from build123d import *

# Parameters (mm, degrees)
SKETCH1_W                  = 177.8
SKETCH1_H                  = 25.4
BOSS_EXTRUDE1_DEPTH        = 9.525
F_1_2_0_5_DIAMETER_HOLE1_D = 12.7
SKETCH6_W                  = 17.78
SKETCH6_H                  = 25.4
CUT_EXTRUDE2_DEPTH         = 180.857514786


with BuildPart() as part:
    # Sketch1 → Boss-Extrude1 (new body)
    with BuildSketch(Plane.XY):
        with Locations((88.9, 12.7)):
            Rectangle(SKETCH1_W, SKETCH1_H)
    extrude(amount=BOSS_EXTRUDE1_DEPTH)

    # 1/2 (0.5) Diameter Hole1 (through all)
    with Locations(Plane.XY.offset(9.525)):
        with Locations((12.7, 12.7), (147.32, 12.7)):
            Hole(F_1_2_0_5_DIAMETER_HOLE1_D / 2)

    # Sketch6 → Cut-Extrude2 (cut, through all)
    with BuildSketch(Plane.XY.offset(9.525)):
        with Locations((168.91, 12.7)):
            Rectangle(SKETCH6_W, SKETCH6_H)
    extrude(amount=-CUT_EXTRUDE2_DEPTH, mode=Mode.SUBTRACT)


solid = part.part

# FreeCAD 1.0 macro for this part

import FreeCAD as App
import Part
import Sketcher
from FreeCAD import Vector
Q = App.Units.Quantity


def add_polygon(sketch, points):
    """Adds a closed chain of lines whose ends are joined by coincident constraints."""
    first, n = sketch.GeometryCount, len(points)
    for a, b in zip(points, points[1:] + points[:1]):
        sketch.addGeometry(Part.LineSegment(App.Vector(*a, 0), App.Vector(*b, 0)), False)
    for i in range(n):
        sketch.addConstraint(Sketcher.Constraint("Coincident", first + i, 2, first + (i + 1) % n, 1))

doc = App.newDocument("Part")
body = doc.addObject("PartDesign::Body", "Body")

# Sketch on XY plane
sketch1 = doc.addObject("Sketcher::SketchObject", "Sketch")
body.addObject(sketch1)
sketch1.AttachmentSupport = (doc.XY_Plane, [""])
sketch1.MapMode = "FlatFace"
add_polygon(sketch1, [(0, 25), (0, 0), (178, 0), (178, 25)])  # lines 0-3
sketch1.addConstraint([
    Sketcher.Constraint("Vertical", 0),
    Sketcher.Constraint("Horizontal", 1),
    Sketcher.Constraint("Vertical", 2),
    Sketcher.Constraint("Horizontal", 3),
    Sketcher.Constraint("Coincident", 0, 2, -1, 1),
    Sketcher.Constraint("DistanceX", 1, 1, 1, 2, Q("7 in")),
    Sketcher.Constraint("DistanceY", 0, 2, 0, 1, Q("1 in")),
])
pad1 = doc.addObject("PartDesign::Pad", "Pad")
body.addObject(pad1)
pad1.Profile = sketch1
pad1.Length = Q("0.375 in")

# Sketch on XY plane
sketch2 = doc.addObject("Sketcher::SketchObject", "Sketch001")
body.addObject(sketch2)
sketch2.AttachmentSupport = (doc.XY_Plane, [""])
sketch2.MapMode = "FlatFace"
sketch2.AttachmentOffset = App.Placement(Vector(0, 0, 0.375 * 25.4), App.Rotation())
sketch2.addGeometry([
    Part.Circle(Vector(13, 13, 0), Vector(0, 0, 1), 6),
    Part.Circle(Vector(147, 13, 0), Vector(0, 0, 1), 6),
], False)
sketch2.addConstraint([
    Sketcher.Constraint("Equal", 0, 1),
    Sketcher.Constraint("Horizontal", 0, 3, 1, 3),
    Sketcher.Constraint("Diameter", 0, Q("0.5 in")),
    Sketcher.Constraint("DistanceX", -1, 1, 0, 3, Q("0.5 in")),
    Sketcher.Constraint("DistanceY", -1, 1, 0, 3, Q("0.5 in")),
    Sketcher.Constraint("DistanceX", -1, 1, 1, 3, Q("5.8 in")),
])
doc.recompute()
hole = doc.addObject("PartDesign::Hole", "Hole")
body.addObject(hole)
hole.Profile = sketch2
hole.ThreadType = "None"
hole.Diameter = Q("0.5 in")
hole.DepthType = "ThroughAll"

# Sketch on XY plane
sketch3 = doc.addObject("Sketcher::SketchObject", "Sketch002")
body.addObject(sketch3)
sketch3.AttachmentSupport = (doc.XY_Plane, [""])
sketch3.MapMode = "FlatFace"
sketch3.AttachmentOffset = App.Placement(Vector(0, 0, 0.375 * 25.4), App.Rotation())
add_polygon(sketch3, [(160, 25), (160, 0), (178, 0), (178, 25)])  # lines 0-3
sketch3.addConstraint([
    Sketcher.Constraint("Vertical", 0),
    Sketcher.Constraint("Horizontal", 1),
    Sketcher.Constraint("Vertical", 2),
    Sketcher.Constraint("Horizontal", 3),
    Sketcher.Constraint("PointOnObject", 0, 2, -1),
    Sketcher.Constraint("DistanceY", 0, 2, 0, 1, Q("1 in")),
    Sketcher.Constraint("DistanceX", 1, 1, 1, 2, Q("0.7 in")),
    Sketcher.Constraint("DistanceX", -1, 1, 1, 2, Q("7 in")),
])
pocket1 = doc.addObject("PartDesign::Pocket", "Pocket")
body.addObject(pocket1)
pocket1.Profile = sketch3
pocket1.Type = "ThroughAll"

doc.recompute()
